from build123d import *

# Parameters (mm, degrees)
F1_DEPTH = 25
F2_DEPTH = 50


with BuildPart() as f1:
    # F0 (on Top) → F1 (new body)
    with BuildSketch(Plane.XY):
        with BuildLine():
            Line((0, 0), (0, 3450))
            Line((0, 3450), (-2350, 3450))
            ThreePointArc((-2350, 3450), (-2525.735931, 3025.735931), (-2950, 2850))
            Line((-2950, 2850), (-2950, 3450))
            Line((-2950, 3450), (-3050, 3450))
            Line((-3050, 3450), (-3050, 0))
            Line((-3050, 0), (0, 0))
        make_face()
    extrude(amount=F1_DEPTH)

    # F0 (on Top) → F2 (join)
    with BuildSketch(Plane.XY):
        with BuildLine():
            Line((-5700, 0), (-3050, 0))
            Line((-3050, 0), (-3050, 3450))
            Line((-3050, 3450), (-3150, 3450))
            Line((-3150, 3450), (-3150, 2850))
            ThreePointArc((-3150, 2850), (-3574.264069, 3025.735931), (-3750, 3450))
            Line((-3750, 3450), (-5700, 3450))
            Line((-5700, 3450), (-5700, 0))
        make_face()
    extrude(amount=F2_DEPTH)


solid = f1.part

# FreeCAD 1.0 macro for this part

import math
import FreeCAD as App
import Part
import Sketcher

doc = App.newDocument("Part")
params = doc.addObject("Spreadsheet::Sheet", "Params")
for row, (alias, value) in enumerate([
    ("sketch1_radius", "599.999999 mm"),
    ("sketch1_width", "2350 mm"),
    ("sketch1_width2", "100 mm"),
    ("sketch1_height", "3450 mm"),
    ("pad1_length", "25 mm"),
    ("sketch2_radius", "599.999999 mm"),
    ("sketch2_width", "2650 mm"),
    ("sketch2_width2", "100 mm"),
    ("sketch2_height", "3450 mm"),
    ("pad2_length", "50 mm"),
], start=1):
    params.set(f"A{row}", alias)
    params.set(f"B{row}", "=" + value)
    params.setAlias(f"B{row}", alias)

body = doc.addObject("PartDesign::Body", "Body")

sketch1 = doc.addObject("Sketcher::SketchObject", "Sketch")
body.addObject(sketch1)
sketch1.AttachmentSupport = (doc.XY_Plane, [""])
sketch1.MapMode = "FlatFace"
sketch1.addGeometry([
    Part.LineSegment(App.Vector(0, 0, 0), App.Vector(0, 3450, 0)),
    Part.LineSegment(App.Vector(0, 3450, 0), App.Vector(-2350, 3450, 0)),
    Part.ArcOfCircle(Part.Circle(App.Vector(-2950, 3450, 0), App.Vector(0, 0, 1), 600), math.radians(-90), math.radians(0)),
    Part.LineSegment(App.Vector(-2950, 2850, 0), App.Vector(-2950, 3450, 0)),
    Part.LineSegment(App.Vector(-2950, 3450, 0), App.Vector(-3050, 3450, 0)),
    Part.LineSegment(App.Vector(-3050, 3450, 0), App.Vector(-3050, 0, 0)),
    Part.LineSegment(App.Vector(-3050, 0, 0), App.Vector(0, 0, 0)),
], False)
sketch1.addConstraint([
    Sketcher.Constraint("Coincident", 0, 2, 1, 1),
    Sketcher.Constraint("Coincident", 1, 2, 2, 2),
    Sketcher.Constraint("Coincident", 2, 1, 3, 1),
    Sketcher.Constraint("Coincident", 3, 2, 4, 1),
    Sketcher.Constraint("Coincident", 4, 2, 5, 1),
    Sketcher.Constraint("Coincident", 5, 2, 6, 1),
    Sketcher.Constraint("Coincident", 6, 2, 0, 1),
    Sketcher.Constraint("Vertical", 0),
    Sketcher.Constraint("Horizontal", 1),
    Sketcher.Constraint("Vertical", 3),
    Sketcher.Constraint("Horizontal", 4),
    Sketcher.Constraint("Vertical", 5),
    Sketcher.Constraint("Horizontal", 6),
    Sketcher.Constraint("Coincident", 6, 2, -1, 1),
    Sketcher.Constraint("Coincident", 3, 2, 2, 3),
    Sketcher.Constraint("Horizontal", 2, 3, 0, 2),
    Sketcher.Constraint("Radius", 2, 599.999999),
    Sketcher.Constraint("DistanceX", 1, 2, 1, 1, 2350.0),
    Sketcher.Constraint("DistanceX", 4, 2, 4, 1, 100.0),
    Sketcher.Constraint("DistanceY", 0, 1, 0, 2, 3450.0),
])
sketch1.setExpression("Constraints[16]", "Params.sketch1_radius")
sketch1.setExpression("Constraints[17]", "Params.sketch1_width")
sketch1.setExpression("Constraints[18]", "Params.sketch1_width2")
sketch1.setExpression("Constraints[19]", "Params.sketch1_height")
pad1 = doc.addObject("PartDesign::Pad", "Pad")
body.addObject(pad1)
pad1.Profile = sketch1
pad1.setExpression("Length", "Params.pad1_length")

sketch2 = doc.addObject("Sketcher::SketchObject", "Sketch001")
body.addObject(sketch2)
sketch2.AttachmentSupport = (doc.XY_Plane, [""])
sketch2.MapMode = "FlatFace"
sketch2.addGeometry([
    Part.LineSegment(App.Vector(-5700, 0, 0), App.Vector(-3050, 0, 0)),
    Part.LineSegment(App.Vector(-3050, 0, 0), App.Vector(-3050, 3450, 0)),
    Part.LineSegment(App.Vector(-3050, 3450, 0), App.Vector(-3150, 3450, 0)),
    Part.LineSegment(App.Vector(-3150, 3450, 0), App.Vector(-3150, 2850, 0)),
    Part.ArcOfCircle(Part.Circle(App.Vector(-3150, 3450, 0), App.Vector(0, 0, 1), 600), math.radians(180), math.radians(270)),
    Part.LineSegment(App.Vector(-3750, 3450, 0), App.Vector(-5700, 3450, 0)),
    Part.LineSegment(App.Vector(-5700, 3450, 0), App.Vector(-5700, 0, 0)),
], False)
sketch2.addConstraint([
    Sketcher.Constraint("Coincident", 0, 2, 1, 1),
    Sketcher.Constraint("Coincident", 1, 2, 2, 1),
    Sketcher.Constraint("Coincident", 2, 2, 3, 1),
    Sketcher.Constraint("Coincident", 3, 2, 4, 2),
    Sketcher.Constraint("Coincident", 4, 1, 5, 1),
    Sketcher.Constraint("Coincident", 5, 2, 6, 1),
    Sketcher.Constraint("Coincident", 6, 2, 0, 1),
    Sketcher.Constraint("Horizontal", 0),
    Sketcher.Constraint("Vertical", 1),
    Sketcher.Constraint("Horizontal", 2),
    Sketcher.Constraint("Vertical", 3),
    Sketcher.Constraint("Horizontal", 5),
    Sketcher.Constraint("Vertical", 6),
    Sketcher.Constraint("Coincident", 2, 2, 4, 3),
    Sketcher.Constraint("PointOnObject", 0, 2, -1),
    Sketcher.Constraint("Equal", 1, 6),
    Sketcher.Constraint("Radius", 4, 599.999999),
    Sketcher.Constraint("DistanceX", 0, 1, 0, 2, 2650.0),
    Sketcher.Constraint("DistanceX", 2, 2, 2, 1, 100.0),
    Sketcher.Constraint("DistanceY", 1, 1, 1, 2, 3450.0),
    Sketcher.Constraint("DistanceX", 4, 3, -1, 1, 3150.000001),
])
sketch2.setExpression("Constraints[16]", "Params.sketch2_radius")
sketch2.setExpression("Constraints[17]", "Params.sketch2_width")
sketch2.setExpression("Constraints[18]", "Params.sketch2_width2")
sketch2.setExpression("Constraints[19]", "Params.sketch2_height")
pad2 = doc.addObject("PartDesign::Pad", "Pad001")
body.addObject(pad2)
pad2.Profile = sketch2
pad2.setExpression("Length", "Params.pad2_length")

doc.recompute()
